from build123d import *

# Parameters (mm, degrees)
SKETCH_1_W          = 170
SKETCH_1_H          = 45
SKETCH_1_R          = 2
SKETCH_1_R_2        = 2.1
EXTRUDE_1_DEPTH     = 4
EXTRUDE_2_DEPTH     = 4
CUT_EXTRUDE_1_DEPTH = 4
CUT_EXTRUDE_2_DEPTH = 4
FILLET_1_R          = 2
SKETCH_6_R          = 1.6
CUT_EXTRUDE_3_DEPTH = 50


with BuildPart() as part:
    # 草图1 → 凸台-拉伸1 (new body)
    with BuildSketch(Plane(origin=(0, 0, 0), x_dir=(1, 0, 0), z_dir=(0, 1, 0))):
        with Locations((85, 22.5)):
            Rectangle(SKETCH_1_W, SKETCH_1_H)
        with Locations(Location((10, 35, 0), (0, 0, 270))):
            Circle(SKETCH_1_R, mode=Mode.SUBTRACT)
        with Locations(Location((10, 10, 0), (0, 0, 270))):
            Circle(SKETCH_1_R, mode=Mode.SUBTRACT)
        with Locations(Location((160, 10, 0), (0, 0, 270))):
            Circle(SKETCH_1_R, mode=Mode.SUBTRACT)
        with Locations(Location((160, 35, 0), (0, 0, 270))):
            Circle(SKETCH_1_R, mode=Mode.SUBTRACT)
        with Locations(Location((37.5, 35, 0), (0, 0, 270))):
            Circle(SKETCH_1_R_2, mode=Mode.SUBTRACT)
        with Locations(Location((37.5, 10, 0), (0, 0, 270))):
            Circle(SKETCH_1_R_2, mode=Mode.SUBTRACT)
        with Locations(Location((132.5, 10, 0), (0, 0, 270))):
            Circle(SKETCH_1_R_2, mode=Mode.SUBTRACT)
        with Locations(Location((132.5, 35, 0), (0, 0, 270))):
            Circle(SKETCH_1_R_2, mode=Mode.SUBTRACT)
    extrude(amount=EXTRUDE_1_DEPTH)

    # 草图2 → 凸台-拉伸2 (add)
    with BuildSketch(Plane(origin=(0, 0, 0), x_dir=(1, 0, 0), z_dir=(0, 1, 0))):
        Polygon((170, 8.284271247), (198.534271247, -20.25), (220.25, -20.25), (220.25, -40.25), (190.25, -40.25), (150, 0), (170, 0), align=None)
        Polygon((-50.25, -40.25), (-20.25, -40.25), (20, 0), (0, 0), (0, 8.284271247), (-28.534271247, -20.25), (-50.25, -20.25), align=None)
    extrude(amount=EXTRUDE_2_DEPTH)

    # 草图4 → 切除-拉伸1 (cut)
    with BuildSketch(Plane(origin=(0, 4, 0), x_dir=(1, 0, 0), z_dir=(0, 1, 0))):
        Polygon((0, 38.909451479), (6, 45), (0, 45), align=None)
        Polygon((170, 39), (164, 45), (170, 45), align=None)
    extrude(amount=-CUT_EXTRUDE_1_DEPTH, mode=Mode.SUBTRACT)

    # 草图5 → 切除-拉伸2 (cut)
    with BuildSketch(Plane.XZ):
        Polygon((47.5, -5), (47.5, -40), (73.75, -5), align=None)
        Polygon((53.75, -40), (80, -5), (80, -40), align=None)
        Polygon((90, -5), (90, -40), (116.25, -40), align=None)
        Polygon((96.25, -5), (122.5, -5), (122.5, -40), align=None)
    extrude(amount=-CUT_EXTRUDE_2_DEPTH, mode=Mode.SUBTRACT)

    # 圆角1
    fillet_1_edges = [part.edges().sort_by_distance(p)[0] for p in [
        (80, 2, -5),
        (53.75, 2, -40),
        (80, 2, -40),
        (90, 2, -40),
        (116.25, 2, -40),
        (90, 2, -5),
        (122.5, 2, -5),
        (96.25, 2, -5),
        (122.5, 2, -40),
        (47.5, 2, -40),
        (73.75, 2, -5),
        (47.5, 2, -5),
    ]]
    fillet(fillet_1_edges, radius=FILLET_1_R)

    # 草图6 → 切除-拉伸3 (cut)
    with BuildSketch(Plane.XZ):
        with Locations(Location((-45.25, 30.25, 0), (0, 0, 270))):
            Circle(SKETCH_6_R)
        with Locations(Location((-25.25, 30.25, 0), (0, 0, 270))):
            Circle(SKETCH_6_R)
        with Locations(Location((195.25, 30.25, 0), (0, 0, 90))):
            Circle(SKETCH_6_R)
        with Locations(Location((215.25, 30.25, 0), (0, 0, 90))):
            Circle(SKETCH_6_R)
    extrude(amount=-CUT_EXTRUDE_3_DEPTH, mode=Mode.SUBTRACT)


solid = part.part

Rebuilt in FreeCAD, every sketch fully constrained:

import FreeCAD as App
import Part
import Sketcher
Q = App.Units.Quantity


def edges_at(feature, points):
    """Names of the edges that pass closest to the given points."""
    edges = feature.Shape.Edges
    near = lambda p: min(range(len(edges)), key=lambda i: edges[i].distToShape(Part.Vertex(*p))[0])
    return sorted({f"Edge{near(p) + 1}" for p in points})


def add_polygon(sketch, points):
    """Adds a closed chain of lines whose ends are joined by coincident constraints."""
    first, n = sketch.GeometryCount, len(points)
    for a, b in zip(points, points[1:] + points[:1]):
        sketch.addGeometry(Part.LineSegment(App.Vector(*a, 0), App.Vector(*b, 0)), False)
    for i in range(n):
        sketch.addConstraint(Sketcher.Constraint("Coincident", first + i, 2, first + (i + 1) % n, 1))

doc = App.newDocument("Part")
body = doc.addObject("PartDesign::Body", "Body")

# Sketch on XZ plane
sketch1 = doc.addObject("Sketcher::SketchObject", "Sketch")
body.addObject(sketch1)
sketch1.AttachmentSupport = (doc.XZ_Plane, [""])
sketch1.MapMode = "FlatFace"
add_polygon(sketch1, [(0, -45), (0, 0), (170, 0), (170, -45)])  # lines 0-3
sketch1.addGeometry(Part.Circle(App.Vector(10, -10, 0), App.Vector(0, 0, 1), 2), False)  # 4
sketch1.addGeometry(Part.Circle(App.Vector(37.5, -10, 0), App.Vector(0, 0, 1), 2.1), False)  # 5
sketch1.addGeometry(Part.Circle(App.Vector(132.5, -10, 0), App.Vector(0, 0, 1), 2.1), False)  # 6
sketch1.addGeometry(Part.Circle(App.Vector(160, -10, 0), App.Vector(0, 0, 1), 2), False)  # 7
sketch1.addGeometry(Part.Circle(App.Vector(10, -35, 0), App.Vector(0, 0, 1), 2), False)  # 8
sketch1.addGeometry(Part.Circle(App.Vector(37.5, -35, 0), App.Vector(0, 0, 1), 2.1), False)  # 9
sketch1.addGeometry(Part.Circle(App.Vector(132.5, -35, 0), App.Vector(0, 0, 1), 2.1), False)  # 10
sketch1.addGeometry(Part.Circle(App.Vector(160, -35, 0), App.Vector(0, 0, 1), 2), False)  # 11
sketch1.addConstraint([
    Sketcher.Constraint("Vertical", 0),
    Sketcher.Constraint("Horizontal", 1),
    Sketcher.Constraint("Vertical", 2),
    Sketcher.Constraint("Horizontal", 3),
    Sketcher.Constraint("Coincident", 0, 2, -1, 1),
    Sketcher.Constraint("Equal", 5, 6),
    Sketcher.Constraint("Equal", 4, 7),
    Sketcher.Constraint("Equal", 7, 8),
    Sketcher.Constraint("Equal", 6, 9),
    Sketcher.Constraint("Equal", 9, 10),
    Sketcher.Constraint("Equal", 8, 11),
    Sketcher.Constraint("Horizontal", 4, 3, 5, 3),
    Sketcher.Constraint("Horizontal", 5, 3, 6, 3),
    Sketcher.Constraint("Horizontal", 6, 3, 7, 3),
    Sketcher.Constraint("Horizontal", 8, 3, 9, 3),
    Sketcher.Constraint("Horizontal", 9, 3, 10, 3),
    Sketcher.Constraint("Horizontal", 10, 3, 11, 3),
    Sketcher.Constraint("Vertical", 4, 3, 8, 3),
    Sketcher.Constraint("Vertical", 5, 3, 9, 3),
    Sketcher.Constraint("Vertical", 6, 3, 10, 3),
    Sketcher.Constraint("Vertical", 7, 3, 11, 3),
    Sketcher.Constraint("Diameter", 4, Q("4 mm")),
    Sketcher.Constraint("Diameter", 5, Q("4.2 mm")),
    Sketcher.Constraint("DistanceX", 1, 1, 1, 2, Q("170 mm")),
    Sketcher.Constraint("DistanceY", 0, 1, 0, 2, Q("45 mm")),
    Sketcher.Constraint("DistanceX", -1, 1, 4, 3, Q("10 mm")),
    Sketcher.Constraint("DistanceY", 4, 3, -1, 1, Q("10 mm")),
    Sketcher.Constraint("DistanceX", -1, 1, 7, 3, Q("160 mm")),
    Sketcher.Constraint("DistanceY", 8, 3, -1, 1, Q("35 mm")),
    Sketcher.Constraint("DistanceX", 5, 3, 6, 3, Q("95 mm")),
    Sketcher.Constraint("DistanceX", -1, 1, 5, 3, Q("37.5 mm")),
])
pad1 = doc.addObject("PartDesign::Pad", "Pad")
body.addObject(pad1)
pad1.Profile = sketch1
pad1.Length = 4
pad1.Reversed = True

# Sketch on XZ plane
sketch2 = doc.addObject("Sketcher::SketchObject", "Sketch001")
body.addObject(sketch2)
sketch2.AttachmentSupport = (doc.XZ_Plane, [""])
sketch2.MapMode = "FlatFace"
add_polygon(sketch2, [(199, 20), (170, -8), (170, 0), (150, 0), (190, 40), (220, 40), (220, 20)])  # lines 0-6
add_polygon(sketch2, [(-50, 40), (-20, 40), (20, 0), (0, 0), (0, -8), (-29, 20), (-50, 20)])  # lines 7-13
sketch2.addConstraint([
    Sketcher.Constraint("Vertical", 1),
    Sketcher.Constraint("Horizontal", 2),
    Sketcher.Constraint("Horizontal", 4),
    Sketcher.Constraint("Vertical", 5),
    Sketcher.Constraint("Horizontal", 6),
    Sketcher.Constraint("Horizontal", 7),
    Sketcher.Constraint("Horizontal", 9),
    Sketcher.Constraint("Vertical", 10),
    Sketcher.Constraint("Horizontal", 12),
    Sketcher.Constraint("Vertical", 13),
    Sketcher.Constraint("Coincident", 9, 2, -1, 1),
    Sketcher.Constraint("PointOnObject", 1, 2, -1),
    Sketcher.Constraint("Parallel", 0, 3),
    Sketcher.Constraint("Perpendicular", 3, 8),
    Sketcher.Constraint("Parallel", 8, 11),
    Sketcher.Constraint("Horizontal", 4, 2, 7, 2),
    Sketcher.Constraint("Horizontal", 0, 2, 10, 2),
    Sketcher.Constraint("Horizontal", 6, 2, 11, 2),
    Sketcher.Constraint("Equal", 4, 7),
    Sketcher.Constraint("Equal", 2, 9),
    Sketcher.Constraint("Equal", 6, 12),
    Sketcher.Constraint("Equal", 9, 5),
    Sketcher.Constraint("DistanceX", 2, 2, 2, 1, Q("20 mm")),
    Sketcher.Constraint("DistanceX", 4, 1, 4, 2, Q("30 mm")),
    Sketcher.Constraint("DistanceX", -1, 1, 0, 2, Q("170 mm")),
    Sketcher.Constraint("DistanceX", 7, 2, 3, 2, Q("210.5 mm")),
    Sketcher.Constraint("DistanceX", 6, 2, 6, 1, Q("21.715729 mm")),
])
pad2 = doc.addObject("PartDesign::Pad", "Pad001")
body.addObject(pad2)
pad2.Profile = sketch2
pad2.Length = 4
pad2.Reversed = True

# Sketch on XZ plane
sketch3 = doc.addObject("Sketcher::SketchObject", "Sketch002")
body.addObject(sketch3)
sketch3.AttachmentSupport = (doc.XZ_Plane, [""])
sketch3.MapMode = "FlatFace"
sketch3.AttachmentOffset = App.Placement(App.Vector(0, 0, -4), App.Rotation())
add_polygon(sketch3, [(0, -39), (6, -45), (0, -45)])  # lines 0-2
add_polygon(sketch3, [(164, -45), (170, -39), (170, -45)])  # lines 3-5
sketch3.addConstraint([
    Sketcher.Constraint("Horizontal", 1),
    Sketcher.Constraint("Vertical", 2),
    Sketcher.Constraint("Vertical", 4),
    Sketcher.Constraint("Horizontal", 5),
    Sketcher.Constraint("PointOnObject", 1, 2, -2),
    Sketcher.Constraint("Horizontal", 1, 2, 4, 2),
    Sketcher.Constraint("Equal", 1, 5),
    Sketcher.Constraint("Equal", 5, 4),
    Sketcher.Constraint("DistanceX", 1, 2, 1, 1, Q("6 mm")),
    Sketcher.Constraint("DistanceY", 0, 2, -1, 1, Q("45 mm")),
    Sketcher.Constraint("DistanceX", -1, 1, 3, 2, Q("170 mm")),
    Sketcher.Constraint("DistanceY", 2, 1, 2, 2, Q("6.090549 mm")),
])
pocket1 = doc.addObject("PartDesign::Pocket", "Pocket")
body.addObject(pocket1)
pocket1.Profile = sketch3
pocket1.Length = 4
pocket1.Reversed = True

# Sketch on XZ plane
sketch4 = doc.addObject("Sketcher::SketchObject", "Sketch003")
body.addObject(sketch4)
sketch4.AttachmentSupport = (doc.XZ_Plane, [""])
sketch4.MapMode = "FlatFace"
add_polygon(sketch4, [(48, -5), (48, -40), (74, -5)])  # lines 0-2
add_polygon(sketch4, [(80, -5), (54, -40), (80, -40)])  # lines 3-5
add_polygon(sketch4, [(90, -5), (90, -40), (116, -40)])  # lines 6-8
add_polygon(sketch4, [(122, -5), (96, -5), (122, -40)])  # lines 9-11
sketch4.addConstraint([
    Sketcher.Constraint("Vertical", 0),
    Sketcher.Constraint("Horizontal", 2),
    Sketcher.Constraint("Horizontal", 4),
    Sketcher.Constraint("Vertical", 5),
    Sketcher.Constraint("Vertical", 6),
    Sketcher.Constraint("Horizontal", 7),
    Sketcher.Constraint("Horizontal", 9),
    Sketcher.Constraint("Vertical", 11),
    Sketcher.Constraint("Parallel", 1, 3),
    Sketcher.Constraint("Parallel", 8, 10),
    Sketcher.Constraint("Horizontal", 0, 2, 3, 2),
    Sketcher.Constraint("Horizontal", 2, 2, 5, 2),
    Sketcher.Constraint("Horizontal", 4, 2, 6, 2),
    Sketcher.Constraint("Horizontal", 5, 2, 8, 2),
    Sketcher.Constraint("Horizontal", 8, 2, 9, 2),
    Sketcher.Constraint("Horizontal", 7, 2, 10, 2),
    Sketcher.Constraint("Equal", 4, 7),
    Sketcher.Constraint("DistanceY", 0, 2, 0, 1, Q("35 mm")),
    Sketcher.Constraint("DistanceY", 0, 2, -1, 1, Q("40 mm")),
    Sketcher.Constraint("DistanceX", -1, 1, 4, 2, Q("80 mm")),
    Sketcher.Constraint("DistanceX", -1, 1, 6, 2, Q("90 mm")),
    Sketcher.Constraint("DistanceX", 3, 2, 1, 2, Q("20 mm")),
    Sketcher.Constraint("DistanceX", 2, 2, 2, 1, Q("26.25 mm")),
    Sketcher.Constraint("DistanceX", -1, 1, 10, 2, Q("122.5 mm")),
])
pocket2 = doc.addObject("PartDesign::Pocket", "Pocket001")
body.addObject(pocket2)
pocket2.Profile = sketch4
pocket2.Length = 4
doc.recompute()

fillet = doc.addObject("PartDesign::Fillet", "Fillet")
body.addObject(fillet)
fillet.Base = (pocket2, edges_at(pocket2, [
    (80, 2, -5),
    (53.75, 2, -40),
    (80, 2, -40),
    (90, 2, -40),
    (116.25, 2, -40),
    (90, 2, -5),
    (122.5, 2, -5),
    (96.25, 2, -5),
    (122.5, 2, -40),
    (47.5, 2, -40),
    (73.75, 2, -5),
    (47.5, 2, -5),
]))
fillet.Radius = 2

# Sketch on XZ plane
sketch5 = doc.addObject("Sketcher::SketchObject", "Sketch004")
body.addObject(sketch5)
sketch5.AttachmentSupport = (doc.XZ_Plane, [""])
sketch5.MapMode = "FlatFace"
sketch5.addGeometry([
    Part.Circle(App.Vector(-45.2, 30.2, 0), App.Vector(0, 0, 1), 1.6),
    Part.Circle(App.Vector(-25.2, 30.2, 0), App.Vector(0, 0, 1), 1.6),
    Part.Circle(App.Vector(195.2, 30.2, 0), App.Vector(0, 0, 1), 1.6),
    Part.Circle(App.Vector(215.2, 30.2, 0), App.Vector(0, 0, 1), 1.6),
], False)
sketch5.addConstraint([
    Sketcher.Constraint("Equal", 0, 1),
    Sketcher.Constraint("Equal", 1, 2),
    Sketcher.Constraint("Equal", 2, 3),
    Sketcher.Constraint("Horizontal", 0, 3, 1, 3),
    Sketcher.Constraint("Horizontal", 1, 3, 2, 3),
    Sketcher.Constraint("Horizontal", 2, 3, 3, 3),
    Sketcher.Constraint("Diameter", 0, Q("3.2 mm")),
    Sketcher.Constraint("DistanceX", 0, 3, 1, 3, Q("20 mm")),
    Sketcher.Constraint("DistanceX", 2, 3, 3, 3, Q("20 mm")),
    Sketcher.Constraint("DistanceX", 1, 3, 2, 3, Q("220.5 mm")),
    Sketcher.Constraint("DistanceX", 0, 3, -1, 1, Q("45.25 mm")),
    Sketcher.Constraint("DistanceY", -1, 1, 0, 3, Q("30.25 mm")),
])
pocket3 = doc.addObject("PartDesign::Pocket", "Pocket002")
body.addObject(pocket3)
pocket3.Profile = sketch5
pocket3.Length = 50

doc.recompute()
